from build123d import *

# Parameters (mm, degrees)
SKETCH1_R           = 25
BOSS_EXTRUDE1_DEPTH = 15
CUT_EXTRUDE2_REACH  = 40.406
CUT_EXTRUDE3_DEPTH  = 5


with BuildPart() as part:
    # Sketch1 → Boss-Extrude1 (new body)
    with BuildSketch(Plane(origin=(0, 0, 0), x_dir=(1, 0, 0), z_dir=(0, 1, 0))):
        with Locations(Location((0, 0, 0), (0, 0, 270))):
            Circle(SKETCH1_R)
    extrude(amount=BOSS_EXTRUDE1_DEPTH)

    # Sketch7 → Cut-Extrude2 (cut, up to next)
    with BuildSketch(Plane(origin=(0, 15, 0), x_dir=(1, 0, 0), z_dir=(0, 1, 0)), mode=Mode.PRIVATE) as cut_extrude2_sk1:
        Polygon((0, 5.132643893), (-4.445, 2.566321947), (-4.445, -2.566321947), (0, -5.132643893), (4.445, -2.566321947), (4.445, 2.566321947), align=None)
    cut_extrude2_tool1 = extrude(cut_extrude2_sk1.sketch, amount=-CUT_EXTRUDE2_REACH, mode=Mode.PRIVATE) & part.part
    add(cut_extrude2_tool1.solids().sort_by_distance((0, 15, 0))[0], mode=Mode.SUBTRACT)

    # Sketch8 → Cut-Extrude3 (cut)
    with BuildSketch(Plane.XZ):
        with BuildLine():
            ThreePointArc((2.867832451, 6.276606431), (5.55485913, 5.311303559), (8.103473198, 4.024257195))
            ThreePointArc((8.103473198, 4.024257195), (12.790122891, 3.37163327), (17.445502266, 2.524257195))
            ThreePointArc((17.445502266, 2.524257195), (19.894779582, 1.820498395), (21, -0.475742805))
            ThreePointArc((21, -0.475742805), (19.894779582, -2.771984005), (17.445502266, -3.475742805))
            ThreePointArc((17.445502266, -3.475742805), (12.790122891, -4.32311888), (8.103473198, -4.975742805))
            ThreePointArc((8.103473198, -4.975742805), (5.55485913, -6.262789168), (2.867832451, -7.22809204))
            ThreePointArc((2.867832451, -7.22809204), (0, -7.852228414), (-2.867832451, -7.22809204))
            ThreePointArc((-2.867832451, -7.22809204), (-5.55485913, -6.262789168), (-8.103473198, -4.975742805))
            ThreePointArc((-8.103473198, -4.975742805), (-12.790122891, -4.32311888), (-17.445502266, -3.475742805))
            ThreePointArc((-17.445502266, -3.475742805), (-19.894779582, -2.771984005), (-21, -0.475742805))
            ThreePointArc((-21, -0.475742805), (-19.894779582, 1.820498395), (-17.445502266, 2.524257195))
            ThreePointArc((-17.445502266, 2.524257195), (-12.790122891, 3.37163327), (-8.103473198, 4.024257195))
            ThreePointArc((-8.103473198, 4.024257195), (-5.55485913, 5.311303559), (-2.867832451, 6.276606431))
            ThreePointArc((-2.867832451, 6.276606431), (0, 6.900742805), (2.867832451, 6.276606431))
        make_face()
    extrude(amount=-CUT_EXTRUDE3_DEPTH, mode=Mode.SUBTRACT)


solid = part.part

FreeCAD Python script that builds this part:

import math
import FreeCAD as App
import Part
import Sketcher
Q = App.Units.Quantity


def add_polygon(sketch, points):
    """Adds a closed chain of lines whose ends are joined by coincident constraints."""
    first, n = sketch.GeometryCount, len(points)
    for a, b in zip(points, points[1:] + points[:1]):
        sketch.addGeometry(Part.LineSegment(App.Vector(*a, 0), App.Vector(*b, 0)), False)
    for i in range(n):
        sketch.addConstraint(Sketcher.Constraint("Coincident", first + i, 2, first + (i + 1) % n, 1))

doc = App.newDocument("Part")
params = doc.addObject("Spreadsheet::Sheet", "Params")
for row, (alias, value) in enumerate([
    ("sketch1_diameter", "50 mm"),
    ("pad1_length", "15 mm"),
    ("pocket2_length", "5 mm"),
], start=1):
    params.set(f"A{row}", alias)
    params.set(f"B{row}", "=" + value)
    params.setAlias(f"B{row}", alias)

body = doc.addObject("PartDesign::Body", "Body")

# Sketch on XZ plane
sketch1 = body.newObject("Sketcher::SketchObject", "Sketch")
sketch1.AttachmentSupport = (doc.getObject("XZ_Plane"), [""])
sketch1.MapMode = "FlatFace"
sketch1.addGeometry(Part.Circle(App.Vector(0, 0, 0), App.Vector(0, 0, 1), 25), False)
sketch1.addConstraint([
    Sketcher.Constraint("Coincident", 0, 3, -1, 1),
    Sketcher.Constraint("Diameter", 0, 50.0),
])
sketch1.setExpression("Constraints[1]", "Params.sketch1_diameter")
pad1 = body.newObject("PartDesign::Pad", "Pad")
pad1.Profile = sketch1
pad1.setExpression("Length", "Params.pad1_length")
pad1.Reversed = True

# Sketch on XZ plane
sketch2 = body.newObject("Sketcher::SketchObject", "Sketch001")
sketch2.AttachmentSupport = (doc.getObject("XZ_Plane"), [""])
sketch2.MapMode = "FlatFace"
sketch2.AttachmentOffset = App.Placement(App.Vector(0, 0, -15), App.Rotation())
add_polygon(sketch2, [(0, -5), (-4, -3), (-4, 3), (0, 5), (4, 3), (4, -3)])  # lines 0-5
sketch2.addConstraint([
    Sketcher.Constraint("Vertical", 1),
    Sketcher.Constraint("Vertical", 4),
    Sketcher.Constraint("Symmetric", 0, 2, 3, 2, -1, 1),
    Sketcher.Constraint("Symmetric", 2, 2, 5, 2, -1, 1),
    Sketcher.Constraint("PointOnObject", 2, 2, -2),
    Sketcher.Constraint("Parallel", 2, 5),
    Sketcher.Constraint("Horizontal", 1, 2, 3, 2),
    Sketcher.Constraint("Angle", 0, Q("150 deg")),
    Sketcher.Constraint("DistanceX", 1, 2, 3, 2, 8.89),
    Sketcher.Constraint("DistanceY", 1, 1, 1, 2, 5.132644),
])
pocket1 = body.newObject("PartDesign::Pocket", "Pocket")
pocket1.Profile = sketch2
pocket1.Type = "UpToFirst"
pocket1.Reversed = True

# Sketch on XZ plane
sketch3 = body.newObject("Sketcher::SketchObject", "Sketch002")
sketch3.AttachmentSupport = (doc.getObject("XZ_Plane"), [""])
sketch3.MapMode = "FlatFace"
sketch3.addGeometry([
    Part.ArcOfCircle(Part.Circle(App.Vector(-3.6, -16.1, 0), App.Vector(0, 0, 1), 23.3), math.radians(59.69), math.radians(73.76)),  # 0
    Part.ArcOfCircle(Part.Circle(App.Vector(0, 0, 0), App.Vector(0, 0, 1), 6.9), math.radians(65), math.radians(115)),  # 1
    Part.ArcOfCircle(Part.Circle(App.Vector(3.6, -16.1, 0), App.Vector(0, 0, 1), 23.3), math.radians(106.24), math.radians(120.31)),  # 2
    Part.ArcOfCircle(Part.Circle(App.Vector(5.2, -108.7, 0), App.Vector(0, 0, 1), 113.5), math.radians(96.73), math.radians(101.51)),  # 3
    Part.ArcOfCircle(Part.Circle(App.Vector(-17.9, -0.6, 0), App.Vector(0, 0, 1), 3.1), math.radians(82), math.radians(178)),  # 4
    Part.ArcOfCircle(Part.Circle(App.Vector(-17.9, -0.4, 0), App.Vector(0, 0, 1), 3.1), math.radians(-178), math.radians(-82)),  # 5
    Part.ArcOfCircle(Part.Circle(App.Vector(5.2, 107.8, 0), App.Vector(0, 0, 1), 113.5), math.radians(-101.51), math.radians(-96.73)),  # 6
    Part.ArcOfCircle(Part.Circle(App.Vector(3.6, 15.1, 0), App.Vector(0, 0, 1), 23.3), math.radians(-120.31), math.radians(-106.24)),  # 7
    Part.ArcOfCircle(Part.Circle(App.Vector(0, -1, 0), App.Vector(0, 0, 1), 6.9), math.radians(-115), math.radians(-65)),  # 8
    Part.ArcOfCircle(Part.Circle(App.Vector(-3.6, 15.1, 0), App.Vector(0, 0, 1), 23.3), math.radians(-73.76), math.radians(-59.69)),  # 9
    Part.ArcOfCircle(Part.Circle(App.Vector(-5.2, 107.8, 0), App.Vector(0, 0, 1), 113.5), math.radians(-83.27), math.radians(-78.49)),  # 10
    Part.ArcOfCircle(Part.Circle(App.Vector(17.9, -0.4, 0), App.Vector(0, 0, 1), 3.1), math.radians(-98), math.radians(-2)),  # 11
    Part.ArcOfCircle(Part.Circle(App.Vector(17.9, -0.6, 0), App.Vector(0, 0, 1), 3.1), math.radians(2), math.radians(98)),  # 12
    Part.ArcOfCircle(Part.Circle(App.Vector(-5.2, -108.7, 0), App.Vector(0, 0, 1), 113.5), math.radians(78.49), math.radians(83.27)),  # 13
], False)
sketch3.addConstraint([
    Sketcher.Constraint("Coincident", 0, 2, 1, 1),
    Sketcher.Constraint("Coincident", 1, 2, 2, 1),
    Sketcher.Constraint("Coincident", 2, 2, 3, 1),
    Sketcher.Constraint("Coincident", 3, 2, 4, 1),
    Sketcher.Constraint("Coincident", 4, 2, 5, 1),
    Sketcher.Constraint("Coincident", 5, 2, 6, 1),
    Sketcher.Constraint("Coincident", 6, 2, 7, 1),
    Sketcher.Constraint("Coincident", 7, 2, 8, 1),
    Sketcher.Constraint("Coincident", 8, 2, 9, 1),
    Sketcher.Constraint("Coincident", 9, 2, 10, 1),
    Sketcher.Constraint("Coincident", 10, 2, 11, 1),
    Sketcher.Constraint("Coincident", 11, 2, 12, 1),
    Sketcher.Constraint("Coincident", 12, 2, 13, 1),
    Sketcher.Constraint("Coincident", 13, 2, 0, 1),
    Sketcher.Constraint("Coincident", 1, 3, -1, 1),
    Sketcher.Constraint("Equal", 0, 2),
    Sketcher.Constraint("Equal", 4, 5),
    Sketcher.Constraint("Equal", 3, 6),
    Sketcher.Constraint("Equal", 2, 7),
    Sketcher.Constraint("Equal", 1, 8),
    Sketcher.Constraint("Equal", 7, 9),
    Sketcher.Constraint("Equal", 6, 10),
    Sketcher.Constraint("Equal", 5, 11),
    Sketcher.Constraint("Equal", 11, 12),
    Sketcher.Constraint("Equal", 10, 13),
    Sketcher.Constraint("Symmetric", 0, 3, 2, 3, -2),
    Sketcher.Constraint("Symmetric", 7, 3, 9, 3, -2),
    Sketcher.Constraint("Symmetric", 6, 3, 10, 3, -2),
    Sketcher.Constraint("Symmetric", 5, 3, 11, 3, -2),
    Sketcher.Constraint("Symmetric", 4, 3, 12, 3, -2),
    Sketcher.Constraint("Symmetric", 3, 3, 13, 3, -2),
    Sketcher.Constraint("PointOnObject", 8, 3, -2),
    Sketcher.Constraint("Vertical", 4, 3, 5, 3),
    Sketcher.Constraint("Vertical", 3, 3, 6, 3),
    Sketcher.Constraint("Vertical", 2, 3, 7, 3),
    Sketcher.Constraint("Vertical", 3, 2, 5, 2),
    Sketcher.Constraint("Vertical", 2, 2, 6, 2),
    Sketcher.Constraint("Vertical", 1, 2, 7, 2),
    Sketcher.Constraint("DistanceX", 4, 2, -1, 1, 21.0),
    Sketcher.Constraint("DistanceY", 4, 2, 3, 2, 3.0),
    Sketcher.Constraint("DistanceY", 6, 2, 2, 2, 9.0),
    Sketcher.Constraint("Radius", 3, 113.515772),
    Sketcher.Constraint("Radius", 4, 3.116439),
    Sketcher.Constraint("DistanceX", -1, 1, 3, 3, 5.205999),
    Sketcher.Constraint("Radius", 0, 23.274404),
    Sketcher.Constraint("Radius", 1, 6.900743),
    Sketcher.Constraint("DistanceY", 3, 3, -1, 1, 108.708561),
    Sketcher.Constraint("DistanceY", 5, 3, -1, 1, 0.390411),
    Sketcher.Constraint("DistanceY", -1, 1, 7, 3, 15.117172),
])
pocket2 = body.newObject("PartDesign::Pocket", "Pocket001")
pocket2.Profile = sketch3
pocket2.setExpression("Length", "Params.pocket2_length")

doc.recompute()
